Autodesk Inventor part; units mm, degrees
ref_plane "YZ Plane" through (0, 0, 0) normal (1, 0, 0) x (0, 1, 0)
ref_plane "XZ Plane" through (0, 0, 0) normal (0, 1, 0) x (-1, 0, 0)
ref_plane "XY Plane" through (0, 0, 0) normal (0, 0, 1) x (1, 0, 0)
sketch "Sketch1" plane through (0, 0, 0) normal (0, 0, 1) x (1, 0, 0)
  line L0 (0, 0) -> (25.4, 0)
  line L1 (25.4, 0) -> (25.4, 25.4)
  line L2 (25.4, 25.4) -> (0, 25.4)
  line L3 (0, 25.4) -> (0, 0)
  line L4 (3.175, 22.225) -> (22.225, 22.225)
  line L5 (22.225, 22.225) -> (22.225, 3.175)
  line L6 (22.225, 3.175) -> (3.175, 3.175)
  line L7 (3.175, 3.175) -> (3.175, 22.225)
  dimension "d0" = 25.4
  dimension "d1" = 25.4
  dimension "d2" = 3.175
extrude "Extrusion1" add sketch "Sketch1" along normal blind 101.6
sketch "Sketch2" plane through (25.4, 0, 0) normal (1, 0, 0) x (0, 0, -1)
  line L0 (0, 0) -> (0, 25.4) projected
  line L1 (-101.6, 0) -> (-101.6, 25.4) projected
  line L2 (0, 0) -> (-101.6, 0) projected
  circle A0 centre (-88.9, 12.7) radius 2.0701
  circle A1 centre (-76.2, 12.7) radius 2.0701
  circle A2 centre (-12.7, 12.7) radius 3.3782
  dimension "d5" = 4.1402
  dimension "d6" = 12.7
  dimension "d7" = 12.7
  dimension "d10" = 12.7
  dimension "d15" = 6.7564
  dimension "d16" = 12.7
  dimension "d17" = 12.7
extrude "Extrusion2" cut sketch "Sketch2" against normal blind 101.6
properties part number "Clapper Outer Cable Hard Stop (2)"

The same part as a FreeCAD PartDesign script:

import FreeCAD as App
import Part
import Sketcher

V = App.Vector
Q = App.Units.Quantity


def add_polygon(sketch, points):
    """Adds a closed chain of lines whose ends are joined by coincident constraints."""
    first, n = sketch.GeometryCount, len(points)
    for a, b in zip(points, points[1:] + points[:1]):
        sketch.addGeometry(Part.LineSegment(App.Vector(*a, 0), App.Vector(*b, 0)), False)
    for i in range(n):
        sketch.addConstraint(Sketcher.Constraint("Coincident", first + i, 2, first + (i + 1) % n, 1))

doc = App.newDocument("Part")
body = doc.addObject("PartDesign::Body", "Body")

# Sketch on XY plane
sketch1 = body.newObject("Sketcher::SketchObject", "Sketch")
sketch1.AttachmentSupport = (doc.getObject("XY_Plane"), [""])
sketch1.MapMode = "FlatFace"
add_polygon(sketch1, [(0, 25), (0, 0), (25, 0), (25, 25)])  # lines 0-3
add_polygon(sketch1, [(3, 3), (3, 22), (22, 22), (22, 3)])  # lines 4-7
sketch1.addConstraint(Sketcher.Constraint("Vertical", 0))
sketch1.addConstraint(Sketcher.Constraint("Horizontal", 1))
sketch1.addConstraint(Sketcher.Constraint("Vertical", 2))
sketch1.addConstraint(Sketcher.Constraint("Horizontal", 3))
sketch1.addConstraint(Sketcher.Constraint("Vertical", 4))
sketch1.addConstraint(Sketcher.Constraint("Horizontal", 5))
sketch1.addConstraint(Sketcher.Constraint("Vertical", 6))
sketch1.addConstraint(Sketcher.Constraint("Horizontal", 7))
sketch1.addConstraint(Sketcher.Constraint("Coincident", 0, 2, -1, 1))
sketch1.addConstraint(Sketcher.Constraint("Equal", 3, 0))
sketch1.addConstraint(Sketcher.Constraint("Equal", 7, 4))
sketch1.addConstraint(Sketcher.Constraint("DistanceX", 1, 1, 1, 2, Q("1 in")))
sketch1.addConstraint(Sketcher.Constraint("DistanceX", -1, 1, 4, 2, Q("0.125 in")))
sketch1.addConstraint(Sketcher.Constraint("DistanceY", -1, 1, 6, 2, Q("0.125 in")))
sketch1.addConstraint(Sketcher.Constraint("DistanceY", 4, 2, 3, 2, Q("0.125 in")))
pad1 = body.newObject("PartDesign::Pad", "Pad")
pad1.Profile = sketch1
pad1.Length = Q("4 in")

# Sketch on YZ plane
sketch2 = body.newObject("Sketcher::SketchObject", "Sketch001")
sketch2.AttachmentSupport = (doc.getObject("YZ_Plane"), [""])
sketch2.MapMode = "FlatFace"
sketch2.AttachmentOffset = App.Placement(V(0, 0, 1 * 25.4), App.Rotation())
sketch2.addGeometry(Part.Circle(V(12.7, 88.9, 0), V(0, 0, 1), 2.1), False)
sketch2.addGeometry(Part.Circle(V(12.7, 76.2, 0), V(0, 0, 1), 2.1), False)
sketch2.addGeometry(Part.Circle(V(12.7, 12.7, 0), V(0, 0, 1), 3.4), False)
sketch2.addConstraint(Sketcher.Constraint("Equal", 0, 1))
sketch2.addConstraint(Sketcher.Constraint("Vertical", 0, 3, 1, 3))
sketch2.addConstraint(Sketcher.Constraint("Vertical", 1, 3, 2, 3))
sketch2.addConstraint(Sketcher.Constraint("Diameter", 0, Q("0.163 in")))
sketch2.addConstraint(Sketcher.Constraint("Diameter", 2, Q("0.266 in")))
sketch2.addConstraint(Sketcher.Constraint("DistanceX", -1, 1, 0, 3, Q("0.5 in")))
sketch2.addConstraint(Sketcher.Constraint("DistanceY", -1, 1, 2, 3, Q("0.5 in")))
sketch2.addConstraint(Sketcher.Constraint("DistanceY", 1, 3, 0, 3, Q("0.5 in")))
sketch2.addConstraint(Sketcher.Constraint("DistanceY", -1, 1, 1, 3, Q("3 in")))
pocket1 = body.newObject("PartDesign::Pocket", "Pocket")
pocket1.Profile = sketch2
pocket1.Length = Q("4 in")

doc.recompute()
